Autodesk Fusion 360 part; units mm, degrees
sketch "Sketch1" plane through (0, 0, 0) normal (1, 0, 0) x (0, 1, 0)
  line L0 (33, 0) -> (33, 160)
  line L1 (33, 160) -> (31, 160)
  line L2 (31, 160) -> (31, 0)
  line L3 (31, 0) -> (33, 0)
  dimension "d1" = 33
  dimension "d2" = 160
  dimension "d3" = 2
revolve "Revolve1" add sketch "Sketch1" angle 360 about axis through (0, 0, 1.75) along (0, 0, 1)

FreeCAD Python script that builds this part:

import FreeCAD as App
import Part
import Sketcher
from FreeCAD import Vector
Q = App.Units.Quantity


def add_polygon(sketch, points):
    """Adds a closed chain of lines whose ends are joined by coincident constraints."""
    first, n = sketch.GeometryCount, len(points)
    for a, b in zip(points, points[1:] + points[:1]):
        sketch.addGeometry(Part.LineSegment(App.Vector(*a, 0), App.Vector(*b, 0)), False)
    for i in range(n):
        sketch.addConstraint(Sketcher.Constraint("Coincident", first + i, 2, first + (i + 1) % n, 1))

doc = App.newDocument("Part")
body = doc.addObject("PartDesign::Body", "Body")

# Sketch on YZ plane
sketch1 = body.newObject("Sketcher::SketchObject", "Sketch")
sketch1.AttachmentSupport = (doc.getObject("YZ_Plane"), [""])
sketch1.MapMode = "FlatFace"
add_polygon(sketch1, [(31, 0), (33, 0), (33, 160), (31, 160)])  # lines 0-3
sketch1.addConstraint([
    Sketcher.Constraint("Horizontal", 0),
    Sketcher.Constraint("Vertical", 1),
    Sketcher.Constraint("Horizontal", 2),
    Sketcher.Constraint("Vertical", 3),
    Sketcher.Constraint("PointOnObject", 0, 2, -1),
    Sketcher.Constraint("DistanceX", 0, 1, 0, 2, Q("2 mm")),
    Sketcher.Constraint("DistanceY", 1, 1, 1, 2, Q("160 mm")),
    Sketcher.Constraint("DistanceX", -1, 1, 0, 2, Q("33 mm")),
])
revolution = body.newObject("PartDesign::Revolution", "Revolution")
revolution.Profile = sketch1
revolution.ReferenceAxis = (sketch1, ["V_Axis"])
revolution.Angle = 360

doc.recompute()
